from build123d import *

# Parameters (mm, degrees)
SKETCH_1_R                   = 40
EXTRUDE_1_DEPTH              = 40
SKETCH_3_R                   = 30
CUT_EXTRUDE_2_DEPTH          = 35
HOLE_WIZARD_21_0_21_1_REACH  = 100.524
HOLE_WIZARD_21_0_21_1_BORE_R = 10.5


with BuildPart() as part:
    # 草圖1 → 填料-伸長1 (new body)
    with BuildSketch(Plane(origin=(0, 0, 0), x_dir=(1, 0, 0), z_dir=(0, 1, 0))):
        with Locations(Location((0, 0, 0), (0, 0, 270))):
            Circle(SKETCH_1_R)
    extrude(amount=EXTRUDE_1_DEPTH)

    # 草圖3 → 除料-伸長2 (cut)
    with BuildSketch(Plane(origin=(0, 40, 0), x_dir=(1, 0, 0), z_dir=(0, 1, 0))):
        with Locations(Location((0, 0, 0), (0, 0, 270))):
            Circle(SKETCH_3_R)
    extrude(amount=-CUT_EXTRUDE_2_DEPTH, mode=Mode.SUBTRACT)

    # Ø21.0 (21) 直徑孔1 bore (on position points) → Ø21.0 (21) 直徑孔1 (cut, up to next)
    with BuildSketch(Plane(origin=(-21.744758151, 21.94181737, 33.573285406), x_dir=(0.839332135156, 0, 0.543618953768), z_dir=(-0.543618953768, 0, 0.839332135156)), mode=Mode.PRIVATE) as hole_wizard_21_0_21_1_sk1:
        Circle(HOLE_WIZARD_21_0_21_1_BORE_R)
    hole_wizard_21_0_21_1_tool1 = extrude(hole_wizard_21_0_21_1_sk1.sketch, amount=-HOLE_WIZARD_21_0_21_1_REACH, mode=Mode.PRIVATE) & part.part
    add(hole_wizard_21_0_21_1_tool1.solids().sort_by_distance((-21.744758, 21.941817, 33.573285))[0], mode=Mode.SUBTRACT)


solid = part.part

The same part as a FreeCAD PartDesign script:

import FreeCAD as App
import Part
import Sketcher

V = App.Vector

doc = App.newDocument("Part")
body = doc.addObject("PartDesign::Body", "Body")

# Sketch on XZ plane
sketch1 = body.newObject("Sketcher::SketchObject", "Sketch")
sketch1.AttachmentSupport = (doc.getObject("XZ_Plane"), [""])
sketch1.MapMode = "FlatFace"
sketch1.addGeometry(Part.Circle(V(0, 0, 0), V(0, 0, 1), 40), False)
sketch1.addConstraint([
    Sketcher.Constraint("Coincident", 0, 3, -1, 1),
    Sketcher.Constraint("Diameter", 0, 80.0),
])
pad1 = body.newObject("PartDesign::Pad", "Pad")
pad1.Profile = sketch1
pad1.Length = 40
pad1.Reversed = True

# Sketch on XZ plane
sketch2 = body.newObject("Sketcher::SketchObject", "Sketch001")
sketch2.AttachmentSupport = (doc.getObject("XZ_Plane"), [""])
sketch2.MapMode = "FlatFace"
sketch2.AttachmentOffset = App.Placement(V(0, 0, -40), App.Rotation())
sketch2.addGeometry(Part.Circle(V(0, 0, 0), V(0, 0, 1), 30), False)
sketch2.addConstraint([
    Sketcher.Constraint("Coincident", 0, 3, -1, 1),
    Sketcher.Constraint("Diameter", 0, 60.0),
])
pocket1 = body.newObject("PartDesign::Pocket", "Pocket")
pocket1.Profile = sketch2
pocket1.Length = 35
pocket1.Reversed = True

# Sketch on an angled plane
sketch3 = body.newObject("Sketcher::SketchObject", "Sketch002")
sketch3.Placement = App.Placement(V(-21.744758, 21.941817, 33.573285), App.Rotation(V(0.839332135, 0, 0.543618954), V(0, 1, 0), V(-0.543618954, 0, 0.839332135), "ZXY"))
sketch3.addGeometry(Part.Circle(V(0, 0, 0), V(0, 0, 1), 10), False)
sketch3.addConstraint([
    Sketcher.Constraint("Coincident", 0, 3, -1, 1),
    Sketcher.Constraint("Diameter", 0, 21.0),
])
pocket2 = body.newObject("PartDesign::Pocket", "Pocket001")
pocket2.Profile = sketch3
pocket2.Type = "UpToFirst"

doc.recompute()
